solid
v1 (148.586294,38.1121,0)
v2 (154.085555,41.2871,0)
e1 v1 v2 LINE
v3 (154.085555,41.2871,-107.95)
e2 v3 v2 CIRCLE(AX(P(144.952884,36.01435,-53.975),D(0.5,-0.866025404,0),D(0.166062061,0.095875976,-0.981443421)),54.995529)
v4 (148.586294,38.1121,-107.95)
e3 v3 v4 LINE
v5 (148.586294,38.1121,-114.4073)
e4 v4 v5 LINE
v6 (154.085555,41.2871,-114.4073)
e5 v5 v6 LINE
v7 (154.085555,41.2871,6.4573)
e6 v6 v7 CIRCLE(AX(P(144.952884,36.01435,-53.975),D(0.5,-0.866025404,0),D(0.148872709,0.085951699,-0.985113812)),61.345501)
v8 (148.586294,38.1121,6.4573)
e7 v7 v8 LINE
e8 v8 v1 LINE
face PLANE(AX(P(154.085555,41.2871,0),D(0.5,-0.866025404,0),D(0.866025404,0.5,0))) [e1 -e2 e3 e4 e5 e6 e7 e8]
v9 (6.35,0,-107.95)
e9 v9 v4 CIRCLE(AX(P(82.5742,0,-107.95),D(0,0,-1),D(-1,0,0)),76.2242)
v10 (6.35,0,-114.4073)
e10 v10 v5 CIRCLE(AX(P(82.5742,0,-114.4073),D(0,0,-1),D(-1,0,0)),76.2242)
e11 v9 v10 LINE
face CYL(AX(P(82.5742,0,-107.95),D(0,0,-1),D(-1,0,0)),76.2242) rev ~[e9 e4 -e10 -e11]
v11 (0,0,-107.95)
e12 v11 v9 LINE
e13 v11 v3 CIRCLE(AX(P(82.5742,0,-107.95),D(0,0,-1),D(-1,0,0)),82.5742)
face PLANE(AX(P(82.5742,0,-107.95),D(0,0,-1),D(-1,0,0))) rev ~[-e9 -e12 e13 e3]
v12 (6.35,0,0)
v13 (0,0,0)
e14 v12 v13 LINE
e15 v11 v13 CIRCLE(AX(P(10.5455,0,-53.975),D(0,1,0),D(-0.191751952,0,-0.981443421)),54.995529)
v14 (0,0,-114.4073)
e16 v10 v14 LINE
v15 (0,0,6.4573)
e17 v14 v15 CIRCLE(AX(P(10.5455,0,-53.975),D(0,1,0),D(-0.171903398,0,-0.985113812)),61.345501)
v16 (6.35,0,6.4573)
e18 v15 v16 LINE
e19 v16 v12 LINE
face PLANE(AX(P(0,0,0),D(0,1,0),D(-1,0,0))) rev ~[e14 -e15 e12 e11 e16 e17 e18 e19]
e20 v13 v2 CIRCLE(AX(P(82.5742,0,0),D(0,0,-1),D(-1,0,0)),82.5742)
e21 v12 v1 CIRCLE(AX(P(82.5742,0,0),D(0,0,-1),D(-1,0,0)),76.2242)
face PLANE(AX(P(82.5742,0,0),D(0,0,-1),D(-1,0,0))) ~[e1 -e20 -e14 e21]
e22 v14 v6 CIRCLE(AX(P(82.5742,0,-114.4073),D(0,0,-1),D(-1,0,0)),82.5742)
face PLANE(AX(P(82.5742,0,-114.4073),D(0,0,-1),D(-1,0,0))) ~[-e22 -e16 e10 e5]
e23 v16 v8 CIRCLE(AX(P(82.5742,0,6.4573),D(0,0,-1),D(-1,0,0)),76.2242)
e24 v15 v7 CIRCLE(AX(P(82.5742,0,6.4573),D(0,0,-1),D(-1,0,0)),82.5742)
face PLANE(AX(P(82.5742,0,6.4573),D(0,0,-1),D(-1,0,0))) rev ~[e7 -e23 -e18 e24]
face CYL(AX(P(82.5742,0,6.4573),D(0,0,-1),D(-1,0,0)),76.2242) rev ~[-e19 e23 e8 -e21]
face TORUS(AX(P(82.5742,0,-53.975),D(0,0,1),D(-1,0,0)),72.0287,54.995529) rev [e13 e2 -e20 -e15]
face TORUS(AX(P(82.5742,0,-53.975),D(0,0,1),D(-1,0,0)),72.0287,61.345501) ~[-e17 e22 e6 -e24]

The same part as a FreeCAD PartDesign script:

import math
import FreeCAD as App
import Part
import Sketcher
from FreeCAD import Vector
Q = App.Units.Quantity

doc = App.newDocument("Part")
params = doc.addObject("Spreadsheet::Sheet", "Params")
for row, (alias, value) in enumerate([
    ("sketch1_width", "0.25 in"),
    ("revolution_angle", "150 deg"),
], start=1):
    params.set(f"A{row}", alias)
    params.set(f"B{row}", "=" + value)
    params.setAlias(f"B{row}", alias)

body = doc.addObject("PartDesign::Body", "Body")

# Sketch on XZ plane
sketch1 = body.newObject("Sketcher::SketchObject", "Sketch")
sketch1.AttachmentSupport = (doc.getObject("XZ_Plane"), [""])
sketch1.MapMode = "FlatFace"
sketch1.addGeometry([
    Part.ArcOfCircle(Part.Circle(Vector(11, -54, 0), Vector(0, 0, 1), 55), math.radians(101), math.radians(259)),  # 0
    Part.LineSegment(Vector(0, -108, 0), Vector(6, -108, 0)),  # 1
    Part.LineSegment(Vector(6, -108, 0), Vector(6, -114, 0)),  # 2
    Part.LineSegment(Vector(6, -114, 0), Vector(0, -114, 0)),  # 3
    Part.ArcOfCircle(Part.Circle(Vector(11, -54, 0), Vector(0, 0, 1), 61), math.radians(100), math.radians(260)),  # 4
    Part.LineSegment(Vector(0, 6, 0), Vector(6, 6, 0)),  # 5
    Part.LineSegment(Vector(6, 6, 0), Vector(6, 0, 0)),  # 6
    Part.LineSegment(Vector(6, 0, 0), Vector(0, 0, 0)),  # 7
], False)
sketch1.addGeometry(Part.LineSegment(Vector(83, 6, 0), Vector(83, -114, 0)), True)  # axis
sketch1.addConstraint([
    Sketcher.Constraint("Coincident", 0, 2, 1, 1),
    Sketcher.Constraint("Coincident", 1, 2, 2, 1),
    Sketcher.Constraint("Coincident", 2, 2, 3, 1),
    Sketcher.Constraint("Coincident", 3, 2, 4, 2),
    Sketcher.Constraint("Coincident", 4, 1, 5, 1),
    Sketcher.Constraint("Coincident", 5, 2, 6, 1),
    Sketcher.Constraint("Coincident", 6, 2, 7, 1),
    Sketcher.Constraint("Coincident", 7, 2, 0, 1),
    Sketcher.Constraint("Horizontal", 1),
    Sketcher.Constraint("Vertical", 2),
    Sketcher.Constraint("Horizontal", 3),
    Sketcher.Constraint("Horizontal", 5),
    Sketcher.Constraint("Vertical", 6),
    Sketcher.Constraint("Horizontal", 7),
    Sketcher.Constraint("Vertical", 8),
    Sketcher.Constraint("Coincident", 7, 2, -1, 1),
    Sketcher.Constraint("Coincident", 4, 3, 0, 3),
    Sketcher.Constraint("PointOnObject", 0, 2, -2),
    Sketcher.Constraint("PointOnObject", 3, 2, -2),
    Sketcher.Constraint("PointOnObject", 4, 1, -2),
    Sketcher.Constraint("Horizontal", 5, 2, 8, 1),
    Sketcher.Constraint("Horizontal", 3, 2, 8, 2),
    Sketcher.Constraint("Vertical", 2, 2, 5, 2),
    Sketcher.Constraint("DistanceX", 1, 1, 1, 2, Q("0.25 in")),
    Sketcher.Constraint("DistanceY", 0, 2, -1, 1, Q("4.25 in")),
    Sketcher.Constraint("Radius", 0, 54.9955),
    Sketcher.Constraint("Radius", 4, 61.3455),
    Sketcher.Constraint("DistanceX", -1, 1, 8, 1, 82.5742),
])
sketch1.setExpression("Constraints[23]", "Params.sketch1_width")
revolution = body.newObject("PartDesign::Revolution", "Revolution")
revolution.Profile = sketch1
revolution.ReferenceAxis = (sketch1, ["Axis0"])
revolution.setExpression("Angle", "Params.revolution_angle")

doc.recompute()
